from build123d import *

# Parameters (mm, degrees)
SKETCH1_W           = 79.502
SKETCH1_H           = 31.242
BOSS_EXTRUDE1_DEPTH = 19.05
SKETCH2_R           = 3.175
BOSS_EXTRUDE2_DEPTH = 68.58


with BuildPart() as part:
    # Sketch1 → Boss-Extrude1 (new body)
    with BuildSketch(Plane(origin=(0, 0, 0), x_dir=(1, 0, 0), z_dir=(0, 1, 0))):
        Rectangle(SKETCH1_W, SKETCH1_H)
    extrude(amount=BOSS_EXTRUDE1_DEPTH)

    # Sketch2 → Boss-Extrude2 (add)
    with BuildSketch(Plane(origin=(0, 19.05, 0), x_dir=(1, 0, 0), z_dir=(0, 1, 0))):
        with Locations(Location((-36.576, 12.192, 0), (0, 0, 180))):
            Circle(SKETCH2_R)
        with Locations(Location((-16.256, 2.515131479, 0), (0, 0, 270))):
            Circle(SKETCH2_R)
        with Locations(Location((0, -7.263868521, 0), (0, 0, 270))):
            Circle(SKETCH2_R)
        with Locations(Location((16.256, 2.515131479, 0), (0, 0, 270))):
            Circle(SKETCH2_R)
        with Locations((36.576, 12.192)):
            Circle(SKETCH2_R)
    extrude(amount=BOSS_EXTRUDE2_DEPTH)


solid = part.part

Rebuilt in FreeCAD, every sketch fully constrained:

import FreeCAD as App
import Part
import Sketcher
Q = App.Units.Quantity


def add_polygon(sketch, points):
    """Adds a closed chain of lines whose ends are joined by coincident constraints."""
    first, n = sketch.GeometryCount, len(points)
    for a, b in zip(points, points[1:] + points[:1]):
        sketch.addGeometry(Part.LineSegment(App.Vector(*a, 0), App.Vector(*b, 0)), False)
    for i in range(n):
        sketch.addConstraint(Sketcher.Constraint("Coincident", first + i, 2, first + (i + 1) % n, 1))

doc = App.newDocument("Part")
body = doc.addObject("PartDesign::Body", "Body")

# Sketch on XZ plane
sketch1 = body.newObject("Sketcher::SketchObject", "Sketch")
sketch1.AttachmentSupport = (doc.getObject("XZ_Plane"), [""])
sketch1.MapMode = "FlatFace"
add_polygon(sketch1, [(-40, -16), (-40, 16), (40, 16), (40, -16)])  # lines 0-3
sketch1.addConstraint(Sketcher.Constraint("Vertical", 0))
sketch1.addConstraint(Sketcher.Constraint("Horizontal", 1))
sketch1.addConstraint(Sketcher.Constraint("Vertical", 2))
sketch1.addConstraint(Sketcher.Constraint("Horizontal", 3))
sketch1.addConstraint(Sketcher.Constraint("Symmetric", 0, 2, 2, 2, -1, 1))
sketch1.addConstraint(Sketcher.Constraint("DistanceX", 1, 1, 1, 2, Q("3.13 in")))
sketch1.addConstraint(Sketcher.Constraint("DistanceY", 0, 1, 0, 2, Q("1.23 in")))
pad1 = body.newObject("PartDesign::Pad", "Pad")
pad1.Profile = sketch1
pad1.Length = Q("0.75 in")
pad1.Reversed = True

# Sketch on XZ plane
sketch2 = body.newObject("Sketcher::SketchObject", "Sketch001")
sketch2.AttachmentSupport = (doc.getObject("XZ_Plane"), [""])
sketch2.MapMode = "FlatFace"
sketch2.AttachmentOffset = App.Placement(App.Vector(0, 0, -0.75 * 25.4), App.Rotation())
sketch2.addGeometry(Part.Circle(App.Vector(-36.6, -12.2, 0), App.Vector(0, 0, 1), 3.2), False)
sketch2.addGeometry(Part.Circle(App.Vector(-16.3, -2.5, 0), App.Vector(0, 0, 1), 3.2), False)
sketch2.addGeometry(Part.Circle(App.Vector(0, 7.3, 0), App.Vector(0, 0, 1), 3.2), False)
sketch2.addGeometry(Part.Circle(App.Vector(16.3, -2.5, 0), App.Vector(0, 0, 1), 3.2), False)
sketch2.addGeometry(Part.Circle(App.Vector(36.6, -12.2, 0), App.Vector(0, 0, 1), 3.2), False)
sketch2.addConstraint(Sketcher.Constraint("Equal", 0, 1))
sketch2.addConstraint(Sketcher.Constraint("Equal", 1, 2))
sketch2.addConstraint(Sketcher.Constraint("Equal", 2, 3))
sketch2.addConstraint(Sketcher.Constraint("Equal", 3, 4))
sketch2.addConstraint(Sketcher.Constraint("Symmetric", 1, 3, 3, 3, -2))
sketch2.addConstraint(Sketcher.Constraint("Symmetric", 0, 3, 4, 3, -2))
sketch2.addConstraint(Sketcher.Constraint("PointOnObject", 2, 3, -2))
sketch2.addConstraint(Sketcher.Constraint("Diameter", 0, Q("0.25 in")))
sketch2.addConstraint(Sketcher.Constraint("DistanceX", 0, 3, 1, 3, Q("0.8 in")))
sketch2.addConstraint(Sketcher.Constraint("DistanceX", 0, 3, -1, 1, Q("1.44 in")))
sketch2.addConstraint(Sketcher.Constraint("DistanceY", 0, 3, -1, 1, Q("0.48 in")))
sketch2.addConstraint(Sketcher.Constraint("DistanceY", 1, 3, 2, 3, Q("0.385 in")))
sketch2.addConstraint(Sketcher.Constraint("DistanceY", 1, 3, -1, 1, Q("2.515131 mm")))
pad2 = body.newObject("PartDesign::Pad", "Pad001")
pad2.Profile = sketch2
pad2.Length = Q("2.7 in")
pad2.Reversed = True

doc.recompute()
